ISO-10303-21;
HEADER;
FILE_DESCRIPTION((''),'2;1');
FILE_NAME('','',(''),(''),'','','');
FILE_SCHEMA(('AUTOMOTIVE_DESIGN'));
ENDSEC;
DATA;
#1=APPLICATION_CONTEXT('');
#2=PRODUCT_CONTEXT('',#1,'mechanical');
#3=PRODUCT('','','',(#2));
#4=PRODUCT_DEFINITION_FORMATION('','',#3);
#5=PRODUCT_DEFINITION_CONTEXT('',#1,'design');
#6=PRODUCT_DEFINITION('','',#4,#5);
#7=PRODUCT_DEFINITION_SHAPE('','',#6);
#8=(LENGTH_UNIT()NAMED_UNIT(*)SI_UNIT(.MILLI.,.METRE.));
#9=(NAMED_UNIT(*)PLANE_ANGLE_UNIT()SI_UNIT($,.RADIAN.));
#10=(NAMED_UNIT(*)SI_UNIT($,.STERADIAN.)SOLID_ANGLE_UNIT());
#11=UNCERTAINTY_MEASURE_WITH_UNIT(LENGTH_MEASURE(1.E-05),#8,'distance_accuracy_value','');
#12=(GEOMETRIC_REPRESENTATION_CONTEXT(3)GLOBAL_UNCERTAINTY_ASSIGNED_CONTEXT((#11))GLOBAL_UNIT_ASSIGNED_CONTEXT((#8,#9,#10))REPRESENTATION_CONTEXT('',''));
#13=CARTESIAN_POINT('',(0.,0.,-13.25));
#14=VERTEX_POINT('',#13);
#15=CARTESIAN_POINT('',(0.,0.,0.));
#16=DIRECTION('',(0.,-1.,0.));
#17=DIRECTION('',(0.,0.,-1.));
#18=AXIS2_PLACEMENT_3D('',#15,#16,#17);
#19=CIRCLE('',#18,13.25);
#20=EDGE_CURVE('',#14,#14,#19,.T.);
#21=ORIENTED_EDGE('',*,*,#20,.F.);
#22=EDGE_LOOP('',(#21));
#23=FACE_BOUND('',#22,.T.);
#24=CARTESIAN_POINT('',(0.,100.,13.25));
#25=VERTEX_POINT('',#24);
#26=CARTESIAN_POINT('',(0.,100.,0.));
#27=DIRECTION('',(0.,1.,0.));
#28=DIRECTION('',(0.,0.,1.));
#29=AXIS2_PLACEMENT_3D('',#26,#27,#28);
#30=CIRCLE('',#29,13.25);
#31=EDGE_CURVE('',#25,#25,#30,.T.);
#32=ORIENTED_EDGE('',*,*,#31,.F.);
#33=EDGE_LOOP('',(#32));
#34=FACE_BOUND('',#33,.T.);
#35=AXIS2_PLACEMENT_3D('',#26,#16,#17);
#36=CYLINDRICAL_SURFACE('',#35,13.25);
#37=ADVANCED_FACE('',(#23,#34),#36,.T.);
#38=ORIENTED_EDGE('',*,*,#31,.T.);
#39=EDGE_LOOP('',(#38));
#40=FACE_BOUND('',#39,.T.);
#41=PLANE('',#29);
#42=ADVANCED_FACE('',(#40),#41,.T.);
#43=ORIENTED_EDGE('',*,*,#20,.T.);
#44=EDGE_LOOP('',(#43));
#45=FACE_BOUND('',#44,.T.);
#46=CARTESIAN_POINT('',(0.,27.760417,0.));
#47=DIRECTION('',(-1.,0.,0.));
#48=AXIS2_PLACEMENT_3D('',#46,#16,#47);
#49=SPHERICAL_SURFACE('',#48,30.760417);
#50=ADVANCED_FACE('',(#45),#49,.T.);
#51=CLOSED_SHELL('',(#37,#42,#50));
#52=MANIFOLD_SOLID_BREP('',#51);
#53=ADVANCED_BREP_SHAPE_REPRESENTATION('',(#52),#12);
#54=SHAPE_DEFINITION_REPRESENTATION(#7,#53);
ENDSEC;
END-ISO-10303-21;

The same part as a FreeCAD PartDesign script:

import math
import FreeCAD as App
import Part
import Sketcher
from FreeCAD import Vector
Q = App.Units.Quantity

doc = App.newDocument("Part")
body = doc.addObject("PartDesign::Body", "Body")

# Sketch on XZ plane
sketch1 = doc.addObject("Sketcher::SketchObject", "Sketch")
body.addObject(sketch1)
sketch1.AttachmentSupport = (doc.XZ_Plane, [""])
sketch1.MapMode = "FlatFace"
sketch1.addGeometry(Part.Circle(Vector(0, 0, 0), Vector(0, 0, 1), 13.25), False)
sketch1.addConstraint([
    Sketcher.Constraint("Coincident", 0, 3, -1, 1),
    Sketcher.Constraint("Diameter", 0, Q("26.5 mm")),
])
pad1 = doc.addObject("PartDesign::Pad", "Pad")
body.addObject(pad1)
pad1.Profile = sketch1
pad1.Length = 100
pad1.Reversed = True

# Sketch on XY plane
sketch2 = doc.addObject("Sketcher::SketchObject", "Sketch001")
body.addObject(sketch2)
sketch2.AttachmentSupport = (doc.XY_Plane, [""])
sketch2.MapMode = "FlatFace"
sketch2.addGeometry([
    Part.LineSegment(Vector(0, 0.442184, 0), Vector(0, -3, 0)),
    Part.ArcOfCircle(Part.Circle(Vector(0, 27.760417, 0), Vector(0, 0, 1), 30.760417), math.radians(-90), math.radians(-64.484936)),
    Part.LineSegment(Vector(13.25, 0, 0), Vector(0, 0.442184, 0)),
], False)
sketch2.addConstraint([
    Sketcher.Constraint("Coincident", 0, 2, 1, 1),
    Sketcher.Constraint("Coincident", 1, 2, 2, 1),
    Sketcher.Constraint("Coincident", 2, 2, 0, 1),
    Sketcher.Constraint("Vertical", 0),
    Sketcher.Constraint("PointOnObject", 1, 3, -2),
    Sketcher.Constraint("PointOnObject", 0, 2, -2),
    Sketcher.Constraint("PointOnObject", 1, 2, -1),
    Sketcher.Constraint("DistanceY", 0, 2, -1, 1, Q("3 mm")),
    Sketcher.Constraint("DistanceX", -1, 1, 1, 2, Q("13.25 mm")),
    Sketcher.Constraint("DistanceY", 0, 2, 0, 1, Q("3.442184 mm")),
])
revolution = doc.addObject("PartDesign::Revolution", "Revolution")
body.addObject(revolution)
revolution.Profile = sketch2
revolution.ReferenceAxis = (sketch2, ["V_Axis"])
revolution.Angle = 360

doc.recompute()
